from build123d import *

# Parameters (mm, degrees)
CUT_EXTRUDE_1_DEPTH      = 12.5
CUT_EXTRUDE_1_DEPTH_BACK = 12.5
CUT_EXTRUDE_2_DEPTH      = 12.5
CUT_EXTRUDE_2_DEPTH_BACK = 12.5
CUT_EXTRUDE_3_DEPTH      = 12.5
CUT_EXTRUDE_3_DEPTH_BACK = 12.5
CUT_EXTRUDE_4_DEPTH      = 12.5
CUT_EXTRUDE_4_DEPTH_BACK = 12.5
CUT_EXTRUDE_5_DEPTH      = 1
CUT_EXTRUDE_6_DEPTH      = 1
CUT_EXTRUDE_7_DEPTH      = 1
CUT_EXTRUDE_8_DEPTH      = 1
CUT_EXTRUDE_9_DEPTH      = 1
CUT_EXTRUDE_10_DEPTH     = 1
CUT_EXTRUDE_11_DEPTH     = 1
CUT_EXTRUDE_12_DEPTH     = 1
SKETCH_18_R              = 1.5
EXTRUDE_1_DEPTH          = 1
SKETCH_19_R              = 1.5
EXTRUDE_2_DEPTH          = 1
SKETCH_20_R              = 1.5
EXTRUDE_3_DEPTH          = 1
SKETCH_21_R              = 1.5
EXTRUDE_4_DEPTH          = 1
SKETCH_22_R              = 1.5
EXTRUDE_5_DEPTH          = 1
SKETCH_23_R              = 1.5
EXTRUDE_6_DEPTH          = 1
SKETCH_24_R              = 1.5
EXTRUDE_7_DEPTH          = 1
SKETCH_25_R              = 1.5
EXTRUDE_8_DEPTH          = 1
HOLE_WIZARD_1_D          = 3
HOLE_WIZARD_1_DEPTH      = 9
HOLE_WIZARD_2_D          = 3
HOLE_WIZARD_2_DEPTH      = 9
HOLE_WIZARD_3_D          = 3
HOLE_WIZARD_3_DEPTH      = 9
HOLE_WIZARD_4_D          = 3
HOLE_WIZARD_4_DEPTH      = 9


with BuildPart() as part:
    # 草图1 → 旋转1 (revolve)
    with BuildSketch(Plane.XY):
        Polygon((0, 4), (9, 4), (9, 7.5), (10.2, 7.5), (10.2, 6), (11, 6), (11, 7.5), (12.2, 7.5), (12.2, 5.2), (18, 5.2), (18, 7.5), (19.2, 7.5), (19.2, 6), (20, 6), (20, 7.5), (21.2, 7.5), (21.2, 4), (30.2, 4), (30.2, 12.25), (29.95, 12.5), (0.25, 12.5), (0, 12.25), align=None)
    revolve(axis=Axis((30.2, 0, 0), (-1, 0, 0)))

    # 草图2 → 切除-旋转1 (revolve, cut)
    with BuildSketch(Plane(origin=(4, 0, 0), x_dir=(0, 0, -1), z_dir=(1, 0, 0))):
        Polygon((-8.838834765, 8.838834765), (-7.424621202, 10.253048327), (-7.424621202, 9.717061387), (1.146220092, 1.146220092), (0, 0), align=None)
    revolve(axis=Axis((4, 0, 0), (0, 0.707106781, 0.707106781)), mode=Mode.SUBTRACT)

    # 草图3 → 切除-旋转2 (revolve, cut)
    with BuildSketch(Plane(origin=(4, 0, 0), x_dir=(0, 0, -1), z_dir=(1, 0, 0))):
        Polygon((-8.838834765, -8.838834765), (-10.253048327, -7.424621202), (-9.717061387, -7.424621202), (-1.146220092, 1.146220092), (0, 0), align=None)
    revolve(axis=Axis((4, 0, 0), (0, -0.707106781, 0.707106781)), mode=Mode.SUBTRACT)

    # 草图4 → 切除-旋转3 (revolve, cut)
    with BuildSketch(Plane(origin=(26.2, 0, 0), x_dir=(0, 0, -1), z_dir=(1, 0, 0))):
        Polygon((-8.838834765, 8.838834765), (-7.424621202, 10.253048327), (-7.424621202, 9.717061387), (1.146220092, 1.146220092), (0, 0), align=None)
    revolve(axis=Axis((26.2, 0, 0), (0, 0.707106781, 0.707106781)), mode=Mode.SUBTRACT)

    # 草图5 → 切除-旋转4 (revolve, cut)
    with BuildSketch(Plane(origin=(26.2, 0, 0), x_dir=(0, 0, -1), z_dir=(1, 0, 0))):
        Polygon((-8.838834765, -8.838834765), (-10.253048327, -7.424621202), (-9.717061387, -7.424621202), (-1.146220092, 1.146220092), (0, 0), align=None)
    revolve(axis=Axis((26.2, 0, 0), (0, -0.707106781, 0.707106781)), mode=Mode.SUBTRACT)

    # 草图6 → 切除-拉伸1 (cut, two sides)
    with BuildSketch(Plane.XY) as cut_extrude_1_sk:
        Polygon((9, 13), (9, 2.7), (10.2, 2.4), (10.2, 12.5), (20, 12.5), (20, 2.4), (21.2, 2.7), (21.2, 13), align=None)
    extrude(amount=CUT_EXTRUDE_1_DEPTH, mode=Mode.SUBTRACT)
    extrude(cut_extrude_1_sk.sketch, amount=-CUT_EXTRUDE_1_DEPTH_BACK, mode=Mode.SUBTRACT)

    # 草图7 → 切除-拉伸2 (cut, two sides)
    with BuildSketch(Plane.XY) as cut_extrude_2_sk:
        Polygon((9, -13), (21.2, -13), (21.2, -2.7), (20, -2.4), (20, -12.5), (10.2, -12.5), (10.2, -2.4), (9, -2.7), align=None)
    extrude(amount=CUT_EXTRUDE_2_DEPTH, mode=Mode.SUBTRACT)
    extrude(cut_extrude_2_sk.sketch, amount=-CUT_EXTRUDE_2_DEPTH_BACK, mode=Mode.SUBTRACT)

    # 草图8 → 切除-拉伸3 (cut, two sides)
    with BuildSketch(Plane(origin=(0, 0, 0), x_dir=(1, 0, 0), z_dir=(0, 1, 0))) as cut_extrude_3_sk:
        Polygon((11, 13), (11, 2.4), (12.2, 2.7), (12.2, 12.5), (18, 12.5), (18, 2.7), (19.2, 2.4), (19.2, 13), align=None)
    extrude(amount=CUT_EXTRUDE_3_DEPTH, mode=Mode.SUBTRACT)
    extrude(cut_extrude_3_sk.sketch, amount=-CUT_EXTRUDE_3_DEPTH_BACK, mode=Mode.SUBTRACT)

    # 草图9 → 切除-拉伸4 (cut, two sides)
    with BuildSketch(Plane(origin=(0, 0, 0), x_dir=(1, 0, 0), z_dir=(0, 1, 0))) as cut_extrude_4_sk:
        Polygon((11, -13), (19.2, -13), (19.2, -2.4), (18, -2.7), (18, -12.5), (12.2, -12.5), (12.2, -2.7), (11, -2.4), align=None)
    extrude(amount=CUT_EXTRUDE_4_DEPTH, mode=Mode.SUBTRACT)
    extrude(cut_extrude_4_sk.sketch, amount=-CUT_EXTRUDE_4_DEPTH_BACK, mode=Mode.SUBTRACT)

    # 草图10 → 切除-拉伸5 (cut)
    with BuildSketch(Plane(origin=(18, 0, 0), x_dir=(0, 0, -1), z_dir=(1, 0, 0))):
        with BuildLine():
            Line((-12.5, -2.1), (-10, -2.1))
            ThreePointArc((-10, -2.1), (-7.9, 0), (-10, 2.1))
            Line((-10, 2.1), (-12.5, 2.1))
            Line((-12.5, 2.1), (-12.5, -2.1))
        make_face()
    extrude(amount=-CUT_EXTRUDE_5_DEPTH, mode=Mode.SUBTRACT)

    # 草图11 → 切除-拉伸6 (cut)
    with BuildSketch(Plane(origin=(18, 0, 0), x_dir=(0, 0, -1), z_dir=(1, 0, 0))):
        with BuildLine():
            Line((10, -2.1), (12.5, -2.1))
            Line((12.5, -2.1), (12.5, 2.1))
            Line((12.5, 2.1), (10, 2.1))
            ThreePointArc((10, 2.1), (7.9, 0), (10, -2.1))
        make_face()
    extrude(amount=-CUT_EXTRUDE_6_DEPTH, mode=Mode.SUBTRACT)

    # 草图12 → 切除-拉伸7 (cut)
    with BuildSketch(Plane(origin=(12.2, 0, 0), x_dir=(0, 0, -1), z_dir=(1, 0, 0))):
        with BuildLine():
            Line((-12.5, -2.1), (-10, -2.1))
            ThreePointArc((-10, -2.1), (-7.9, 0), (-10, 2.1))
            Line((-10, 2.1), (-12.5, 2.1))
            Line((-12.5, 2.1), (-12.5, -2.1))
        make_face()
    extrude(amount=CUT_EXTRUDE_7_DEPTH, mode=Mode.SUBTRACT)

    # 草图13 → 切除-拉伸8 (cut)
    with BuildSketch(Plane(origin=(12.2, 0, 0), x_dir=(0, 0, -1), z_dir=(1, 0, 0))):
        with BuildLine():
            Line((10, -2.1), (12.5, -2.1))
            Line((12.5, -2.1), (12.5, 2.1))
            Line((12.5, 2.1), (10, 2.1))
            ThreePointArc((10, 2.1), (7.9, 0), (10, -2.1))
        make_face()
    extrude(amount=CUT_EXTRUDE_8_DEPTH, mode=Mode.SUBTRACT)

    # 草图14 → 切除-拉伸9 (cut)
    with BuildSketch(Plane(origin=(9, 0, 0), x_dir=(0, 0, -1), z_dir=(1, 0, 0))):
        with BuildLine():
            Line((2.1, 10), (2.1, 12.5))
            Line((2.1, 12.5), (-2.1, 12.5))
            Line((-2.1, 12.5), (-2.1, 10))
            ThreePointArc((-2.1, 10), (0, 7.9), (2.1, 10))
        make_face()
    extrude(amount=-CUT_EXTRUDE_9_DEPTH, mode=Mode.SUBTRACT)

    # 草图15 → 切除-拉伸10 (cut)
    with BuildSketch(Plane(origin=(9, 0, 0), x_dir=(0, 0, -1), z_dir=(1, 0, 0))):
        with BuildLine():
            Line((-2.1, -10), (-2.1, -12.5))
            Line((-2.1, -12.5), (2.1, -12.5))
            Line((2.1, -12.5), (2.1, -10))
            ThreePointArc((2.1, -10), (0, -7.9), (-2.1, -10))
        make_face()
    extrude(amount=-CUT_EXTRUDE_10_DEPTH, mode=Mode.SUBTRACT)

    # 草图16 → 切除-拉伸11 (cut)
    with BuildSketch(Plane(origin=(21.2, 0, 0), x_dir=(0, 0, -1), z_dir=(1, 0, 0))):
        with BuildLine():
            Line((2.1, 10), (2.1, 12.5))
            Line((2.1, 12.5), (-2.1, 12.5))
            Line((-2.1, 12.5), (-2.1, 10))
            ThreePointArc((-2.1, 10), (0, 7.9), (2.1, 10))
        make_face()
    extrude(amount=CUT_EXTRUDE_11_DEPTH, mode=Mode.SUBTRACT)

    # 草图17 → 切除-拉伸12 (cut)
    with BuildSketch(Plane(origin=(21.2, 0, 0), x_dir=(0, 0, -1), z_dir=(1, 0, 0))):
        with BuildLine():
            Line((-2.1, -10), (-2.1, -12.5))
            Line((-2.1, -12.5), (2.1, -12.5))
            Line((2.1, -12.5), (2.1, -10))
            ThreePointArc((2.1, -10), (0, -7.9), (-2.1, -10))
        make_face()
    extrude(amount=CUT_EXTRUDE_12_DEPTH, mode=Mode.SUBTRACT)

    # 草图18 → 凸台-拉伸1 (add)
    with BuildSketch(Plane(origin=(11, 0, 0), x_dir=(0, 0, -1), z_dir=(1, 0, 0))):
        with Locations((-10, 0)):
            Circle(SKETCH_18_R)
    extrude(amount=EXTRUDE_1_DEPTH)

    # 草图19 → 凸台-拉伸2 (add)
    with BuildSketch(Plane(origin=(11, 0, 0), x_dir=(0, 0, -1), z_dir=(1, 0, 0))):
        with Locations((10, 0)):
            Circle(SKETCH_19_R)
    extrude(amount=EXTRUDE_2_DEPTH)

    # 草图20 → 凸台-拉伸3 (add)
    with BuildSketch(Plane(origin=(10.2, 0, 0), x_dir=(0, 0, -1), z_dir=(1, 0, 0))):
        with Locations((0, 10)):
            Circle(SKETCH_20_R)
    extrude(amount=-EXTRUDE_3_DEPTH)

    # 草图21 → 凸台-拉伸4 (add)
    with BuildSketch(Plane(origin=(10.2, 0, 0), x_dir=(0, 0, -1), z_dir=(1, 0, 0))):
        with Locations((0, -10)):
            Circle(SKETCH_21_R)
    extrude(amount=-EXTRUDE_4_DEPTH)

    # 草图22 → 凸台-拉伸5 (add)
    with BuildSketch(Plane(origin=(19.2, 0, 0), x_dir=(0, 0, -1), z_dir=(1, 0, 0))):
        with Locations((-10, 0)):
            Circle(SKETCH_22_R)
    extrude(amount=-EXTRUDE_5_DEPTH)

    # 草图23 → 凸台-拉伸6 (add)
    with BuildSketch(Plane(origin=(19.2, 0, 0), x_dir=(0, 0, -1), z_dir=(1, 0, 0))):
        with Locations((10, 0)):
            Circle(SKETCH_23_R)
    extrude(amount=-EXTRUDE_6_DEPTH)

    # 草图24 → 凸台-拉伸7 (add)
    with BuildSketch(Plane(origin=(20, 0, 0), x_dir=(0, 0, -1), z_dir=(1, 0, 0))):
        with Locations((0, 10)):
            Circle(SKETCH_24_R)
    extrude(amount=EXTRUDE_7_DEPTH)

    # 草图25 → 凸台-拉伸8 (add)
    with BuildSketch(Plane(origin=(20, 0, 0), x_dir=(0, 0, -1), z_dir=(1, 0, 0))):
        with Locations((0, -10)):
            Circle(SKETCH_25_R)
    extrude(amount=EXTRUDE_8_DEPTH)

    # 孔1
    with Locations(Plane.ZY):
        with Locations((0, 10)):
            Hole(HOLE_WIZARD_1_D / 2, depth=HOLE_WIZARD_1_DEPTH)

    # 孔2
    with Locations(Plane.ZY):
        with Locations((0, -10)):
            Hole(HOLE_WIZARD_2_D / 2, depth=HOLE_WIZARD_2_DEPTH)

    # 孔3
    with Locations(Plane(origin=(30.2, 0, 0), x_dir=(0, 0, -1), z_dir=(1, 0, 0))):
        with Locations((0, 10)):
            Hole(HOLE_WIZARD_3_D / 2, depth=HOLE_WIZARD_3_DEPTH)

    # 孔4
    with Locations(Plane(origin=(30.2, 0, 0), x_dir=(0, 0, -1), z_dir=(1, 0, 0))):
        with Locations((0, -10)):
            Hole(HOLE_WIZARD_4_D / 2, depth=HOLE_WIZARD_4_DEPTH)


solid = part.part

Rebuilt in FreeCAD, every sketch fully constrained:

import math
import FreeCAD as App
import Part
import Sketcher
from FreeCAD import Vector
Q = App.Units.Quantity


def add_polygon(sketch, points):
    """Adds a closed chain of lines whose ends are joined by coincident constraints."""
    first, n = sketch.GeometryCount, len(points)
    for a, b in zip(points, points[1:] + points[:1]):
        sketch.addGeometry(Part.LineSegment(App.Vector(*a, 0), App.Vector(*b, 0)), False)
    for i in range(n):
        sketch.addConstraint(Sketcher.Constraint("Coincident", first + i, 2, first + (i + 1) % n, 1))

doc = App.newDocument("Part")
body = doc.addObject("PartDesign::Body", "Body")

sketch1 = body.newObject("Sketcher::SketchObject", "Sketch")
sketch1.AttachmentSupport = (doc.getObject("XY_Plane"), [""])
sketch1.MapMode = "FlatFace"
add_polygon(sketch1, [(0, 4), (9, 4), (9, 7.5), (10.2, 7.5), (10.2, 6), (11, 6), (11, 7.5), (12.2, 7.5), (12.2, 5.2), (18, 5.2), (18, 7.5), (19.2, 7.5), (19.2, 6), (20, 6), (20, 7.5), (21.2, 7.5), (21.2, 4), (30.2, 4), (30.2, 12.25), (29.95, 12.5), (0.25, 12.5), (0, 12.25)])
sketch1.addConstraint(Sketcher.Constraint("Horizontal", 0))
sketch1.addConstraint(Sketcher.Constraint("Vertical", 1))
sketch1.addConstraint(Sketcher.Constraint("Horizontal", 2))
sketch1.addConstraint(Sketcher.Constraint("Vertical", 3))
sketch1.addConstraint(Sketcher.Constraint("Horizontal", 4))
sketch1.addConstraint(Sketcher.Constraint("Vertical", 5))
sketch1.addConstraint(Sketcher.Constraint("Horizontal", 6))
sketch1.addConstraint(Sketcher.Constraint("Vertical", 7))
sketch1.addConstraint(Sketcher.Constraint("Horizontal", 8))
sketch1.addConstraint(Sketcher.Constraint("Vertical", 9))
sketch1.addConstraint(Sketcher.Constraint("Horizontal", 10))
sketch1.addConstraint(Sketcher.Constraint("Vertical", 11))
sketch1.addConstraint(Sketcher.Constraint("Horizontal", 12))
sketch1.addConstraint(Sketcher.Constraint("Vertical", 13))
sketch1.addConstraint(Sketcher.Constraint("Horizontal", 14))
sketch1.addConstraint(Sketcher.Constraint("Vertical", 15))
sketch1.addConstraint(Sketcher.Constraint("Horizontal", 16))
sketch1.addConstraint(Sketcher.Constraint("Vertical", 17))
sketch1.addConstraint(Sketcher.Constraint("Horizontal", 19))
sketch1.addConstraint(Sketcher.Constraint("Vertical", 21))
sketch1.addConstraint(Sketcher.Constraint("PointOnObject", 20, 2, -2))
sketch1.addConstraint(Sketcher.Constraint("Perpendicular", 18, 20))
sketch1.addConstraint(Sketcher.Constraint("Horizontal", 2, 2, 5, 2))
sketch1.addConstraint(Sketcher.Constraint("Horizontal", 6, 2, 9, 2))
sketch1.addConstraint(Sketcher.Constraint("Horizontal", 4, 2, 11, 2))
sketch1.addConstraint(Sketcher.Constraint("Horizontal", 10, 2, 13, 2))
sketch1.addConstraint(Sketcher.Constraint("Horizontal", 0, 2, 15, 2))
sketch1.addConstraint(Sketcher.Constraint("Horizontal", 17, 2, 20, 2))
sketch1.addConstraint(Sketcher.Constraint("Equal", 2, 6))
sketch1.addConstraint(Sketcher.Constraint("Equal", 6, 10))
sketch1.addConstraint(Sketcher.Constraint("Equal", 4, 12))
sketch1.addConstraint(Sketcher.Constraint("Equal", 10, 14))
sketch1.addConstraint(Sketcher.Constraint("Equal", 0, 16))
sketch1.addConstraint(Sketcher.Constraint("Equal", 18, 20))
sketch1.addConstraint(Sketcher.Constraint("DistanceX", 0, 1, 0, 2, 9.0))
sketch1.addConstraint(Sketcher.Constraint("DistanceX", 2, 1, 2, 2, 1.2))
sketch1.addConstraint(Sketcher.Constraint("DistanceX", 4, 1, 4, 2, 0.8))
sketch1.addConstraint(Sketcher.Constraint("DistanceX", 8, 1, 8, 2, 5.8))
sketch1.addConstraint(Sketcher.Constraint("DistanceX", 19, 2, 19, 1, 29.7))
sketch1.addConstraint(Sketcher.Constraint("DistanceY", 1, 1, 1, 2, 3.5))
sketch1.addConstraint(Sketcher.Constraint("DistanceY", 3, 2, 3, 1, 1.5))
sketch1.addConstraint(Sketcher.Constraint("DistanceY", 7, 2, 7, 1, 2.3))
sketch1.addConstraint(Sketcher.Constraint("DistanceY", -1, 1, 0, 2, 4.0))
sketch1.addConstraint(Sketcher.Constraint("DistanceY", 14, 2, 18, 2, 5.0))
revolution = body.newObject("PartDesign::Revolution", "Revolution")
revolution.Profile = sketch1
revolution.ReferenceAxis = (sketch1, ["H_Axis"])
revolution.Angle = 360

sketch2 = body.newObject("Sketcher::SketchObject", "Sketch001")
sketch2.AttachmentSupport = (doc.getObject("YZ_Plane"), [""])
sketch2.MapMode = "FlatFace"
sketch2.AttachmentOffset = App.Placement(Vector(0, 0, 4), App.Rotation())
add_polygon(sketch2, [(10.253048, 7.424621), (8.838835, 8.838835), (0, 0), (1.14622, -1.14622), (9.717061, 7.424621)])
sketch2.addGeometry(Part.LineSegment(Vector(0, 0, 0), Vector(8.838835, 8.838835, 0)), True)
sketch2.addConstraint(Sketcher.Constraint("Horizontal", 4))
sketch2.addConstraint(Sketcher.Constraint("Coincident", 1, 2, -1, 1))
sketch2.addConstraint(Sketcher.Constraint("Coincident", 5, 1, -1, 1))
sketch2.addConstraint(Sketcher.Constraint("Coincident", 5, 2, 0, 2))
sketch2.addConstraint(Sketcher.Constraint("Perpendicular", 0, 1))
sketch2.addConstraint(Sketcher.Constraint("Perpendicular", 1, 2))
sketch2.addConstraint(Sketcher.Constraint("Perpendicular", 2, 3))
sketch2.addConstraint(Sketcher.Constraint("Angle", 0, Q("135 deg")))
sketch2.addConstraint(Sketcher.Constraint("Distance", 0, 2.0))
sketch2.addConstraint(Sketcher.Constraint("Distance", 1, 12.5))
sketch2.addConstraint(Sketcher.Constraint("Distance", 2, 1.621))
groove = body.newObject("PartDesign::Groove", "Groove")
groove.Profile = sketch2
groove.ReferenceAxis = (sketch2, ["Axis0"])
groove.Angle = 360

sketch3 = body.newObject("Sketcher::SketchObject", "Sketch002")
sketch3.AttachmentSupport = (doc.getObject("YZ_Plane"), [""])
sketch3.MapMode = "FlatFace"
sketch3.AttachmentOffset = App.Placement(Vector(0, 0, 4), App.Rotation())
add_polygon(sketch3, [(-7.424621, 10.253048), (-8.838835, 8.838835), (0, 0), (1.14622, 1.14622), (-7.424621, 9.717061)])
sketch3.addGeometry(Part.LineSegment(Vector(0, 0, 0), Vector(-8.838835, 8.838835, 0)), True)
sketch3.addConstraint(Sketcher.Constraint("Vertical", 4))
sketch3.addConstraint(Sketcher.Constraint("Coincident", 1, 2, -1, 1))
sketch3.addConstraint(Sketcher.Constraint("Coincident", 5, 1, -1, 1))
sketch3.addConstraint(Sketcher.Constraint("Coincident", 5, 2, 0, 2))
sketch3.addConstraint(Sketcher.Constraint("Perpendicular", 0, 1))
sketch3.addConstraint(Sketcher.Constraint("Perpendicular", 1, 2))
sketch3.addConstraint(Sketcher.Constraint("Perpendicular", 2, 3))
sketch3.addConstraint(Sketcher.Constraint("Angle", 0, Q("-135 deg")))
sketch3.addConstraint(Sketcher.Constraint("Distance", 0, 2.0))
sketch3.addConstraint(Sketcher.Constraint("Distance", 1, 12.5))
sketch3.addConstraint(Sketcher.Constraint("Distance", 2, 1.621))
groove2 = body.newObject("PartDesign::Groove", "Groove001")
groove2.Profile = sketch3
groove2.ReferenceAxis = (sketch3, ["Axis0"])
groove2.Angle = 360

sketch4 = body.newObject("Sketcher::SketchObject", "Sketch003")
sketch4.AttachmentSupport = (doc.getObject("YZ_Plane"), [""])
sketch4.MapMode = "FlatFace"
sketch4.AttachmentOffset = App.Placement(Vector(0, 0, 26.2), App.Rotation())
add_polygon(sketch4, [(10.253048, 7.424621), (8.838835, 8.838835), (0, 0), (1.14622, -1.14622), (9.717061, 7.424621)])
sketch4.addGeometry(Part.LineSegment(Vector(0, 0, 0), Vector(8.838835, 8.838835, 0)), True)
sketch4.addConstraint(Sketcher.Constraint("Horizontal", 4))
sketch4.addConstraint(Sketcher.Constraint("Coincident", 1, 2, -1, 1))
sketch4.addConstraint(Sketcher.Constraint("Coincident", 5, 1, -1, 1))
sketch4.addConstraint(Sketcher.Constraint("Coincident", 5, 2, 0, 2))
sketch4.addConstraint(Sketcher.Constraint("Perpendicular", 0, 1))
sketch4.addConstraint(Sketcher.Constraint("Perpendicular", 1, 2))
sketch4.addConstraint(Sketcher.Constraint("Perpendicular", 2, 3))
sketch4.addConstraint(Sketcher.Constraint("Angle", 0, Q("135 deg")))
sketch4.addConstraint(Sketcher.Constraint("Distance", 0, 2.0))
sketch4.addConstraint(Sketcher.Constraint("Distance", 1, 12.5))
sketch4.addConstraint(Sketcher.Constraint("Distance", 2, 1.621))
groove3 = body.newObject("PartDesign::Groove", "Groove002")
groove3.Profile = sketch4
groove3.ReferenceAxis = (sketch4, ["Axis0"])
groove3.Angle = 360

sketch5 = body.newObject("Sketcher::SketchObject", "Sketch004")
sketch5.AttachmentSupport = (doc.getObject("YZ_Plane"), [""])
sketch5.MapMode = "FlatFace"
sketch5.AttachmentOffset = App.Placement(Vector(0, 0, 26.2), App.Rotation())
add_polygon(sketch5, [(-7.424621, 10.253048), (-8.838835, 8.838835), (0, 0), (1.14622, 1.14622), (-7.424621, 9.717061)])
sketch5.addGeometry(Part.LineSegment(Vector(0, 0, 0), Vector(-8.838835, 8.838835, 0)), True)
sketch5.addConstraint(Sketcher.Constraint("Vertical", 4))
sketch5.addConstraint(Sketcher.Constraint("Coincident", 1, 2, -1, 1))
sketch5.addConstraint(Sketcher.Constraint("Coincident", 5, 1, -1, 1))
sketch5.addConstraint(Sketcher.Constraint("Coincident", 5, 2, 0, 2))
sketch5.addConstraint(Sketcher.Constraint("Perpendicular", 0, 1))
sketch5.addConstraint(Sketcher.Constraint("Perpendicular", 1, 2))
sketch5.addConstraint(Sketcher.Constraint("Perpendicular", 2, 3))
sketch5.addConstraint(Sketcher.Constraint("Angle", 0, Q("-135 deg")))
sketch5.addConstraint(Sketcher.Constraint("Distance", 0, 2.0))
sketch5.addConstraint(Sketcher.Constraint("Distance", 1, 12.5))
sketch5.addConstraint(Sketcher.Constraint("Distance", 2, 1.621))
groove4 = body.newObject("PartDesign::Groove", "Groove003")
groove4.Profile = sketch5
groove4.ReferenceAxis = (sketch5, ["Axis0"])
groove4.Angle = 360

sketch6 = body.newObject("Sketcher::SketchObject", "Sketch005")
sketch6.AttachmentSupport = (doc.getObject("XY_Plane"), [""])
sketch6.MapMode = "FlatFace"
add_polygon(sketch6, [(9, 13), (9, 2.7), (10.2, 2.4), (10.2, 12.5), (20, 12.5), (20, 2.4), (21.2, 2.7), (21.2, 13)])
sketch6.addConstraint(Sketcher.Constraint("Vertical", 0))
sketch6.addConstraint(Sketcher.Constraint("Vertical", 2))
sketch6.addConstraint(Sketcher.Constraint("Horizontal", 3))
sketch6.addConstraint(Sketcher.Constraint("Vertical", 4))
sketch6.addConstraint(Sketcher.Constraint("Vertical", 6))
sketch6.addConstraint(Sketcher.Constraint("Horizontal", 7))
sketch6.addConstraint(Sketcher.Constraint("Horizontal", 1, 2, 4, 2))
sketch6.addConstraint(Sketcher.Constraint("Horizontal", 0, 2, 5, 2))
sketch6.addConstraint(Sketcher.Constraint("Equal", 1, 5))
sketch6.addConstraint(Sketcher.Constraint("DistanceX", 3, 1, 3, 2, 9.8))
sketch6.addConstraint(Sketcher.Constraint("DistanceX", 7, 2, 7, 1, 12.2))
sketch6.addConstraint(Sketcher.Constraint("DistanceY", 0, 2, 0, 1, 10.3))
sketch6.addConstraint(Sketcher.Constraint("DistanceY", 2, 1, 2, 2, 10.1))
sketch6.addConstraint(Sketcher.Constraint("DistanceX", -1, 1, 0, 2, 9.0))
sketch6.addConstraint(Sketcher.Constraint("DistanceY", -1, 1, 6, 2, 13.0))
sketch6.addConstraint(Sketcher.Constraint("DistanceY", -1, 1, 1, 2, 2.4))
pocket1 = body.newObject("PartDesign::Pocket", "Pocket")
pocket1.Profile = sketch6
pocket1.Type = "ThroughAll"
pocket1.Midplane = True

sketch7 = body.newObject("Sketcher::SketchObject", "Sketch006")
sketch7.AttachmentSupport = (doc.getObject("XY_Plane"), [""])
sketch7.MapMode = "FlatFace"
add_polygon(sketch7, [(9, -13), (21.2, -13), (21.2, -2.7), (20, -2.4), (20, -12.5), (10.2, -12.5), (10.2, -2.4), (9, -2.7)])
sketch7.addConstraint(Sketcher.Constraint("Horizontal", 0))
sketch7.addConstraint(Sketcher.Constraint("Vertical", 1))
sketch7.addConstraint(Sketcher.Constraint("Vertical", 3))
sketch7.addConstraint(Sketcher.Constraint("Horizontal", 4))
sketch7.addConstraint(Sketcher.Constraint("Vertical", 5))
sketch7.addConstraint(Sketcher.Constraint("Vertical", 7))
sketch7.addConstraint(Sketcher.Constraint("Horizontal", 2, 2, 5, 2))
sketch7.addConstraint(Sketcher.Constraint("Horizontal", 1, 2, 6, 2))
sketch7.addConstraint(Sketcher.Constraint("Equal", 2, 6))
sketch7.addConstraint(Sketcher.Constraint("DistanceX", 0, 1, 0, 2, 12.2))
sketch7.addConstraint(Sketcher.Constraint("DistanceX", 4, 2, 4, 1, 9.8))
sketch7.addConstraint(Sketcher.Constraint("DistanceY", 1, 1, 1, 2, 10.3))
sketch7.addConstraint(Sketcher.Constraint("DistanceY", 3, 2, 3, 1, 10.1))
sketch7.addConstraint(Sketcher.Constraint("DistanceY", 0, 2, -1, 1, 13.0))
sketch7.addConstraint(Sketcher.Constraint("DistanceX", -1, 1, 2, 2, 20.0))
sketch7.addConstraint(Sketcher.Constraint("DistanceY", 2, 2, -1, 1, 2.4))
pocket2 = body.newObject("PartDesign::Pocket", "Pocket001")
pocket2.Profile = sketch7
pocket2.Type = "ThroughAll"
pocket2.Midplane = True

sketch8 = body.newObject("Sketcher::SketchObject", "Sketch007")
sketch8.AttachmentSupport = (doc.getObject("XZ_Plane"), [""])
sketch8.MapMode = "FlatFace"
add_polygon(sketch8, [(11, -13), (11, -2.4), (12.2, -2.7), (12.2, -12.5), (18, -12.5), (18, -2.7), (19.2, -2.4), (19.2, -13)])
sketch8.addConstraint(Sketcher.Constraint("Vertical", 0))
sketch8.addConstraint(Sketcher.Constraint("Vertical", 2))
sketch8.addConstraint(Sketcher.Constraint("Horizontal", 3))
sketch8.addConstraint(Sketcher.Constraint("Vertical", 4))
sketch8.addConstraint(Sketcher.Constraint("Vertical", 6))
sketch8.addConstraint(Sketcher.Constraint("Horizontal", 7))
sketch8.addConstraint(Sketcher.Constraint("Horizontal", 1, 2, 4, 2))
sketch8.addConstraint(Sketcher.Constraint("Horizontal", 0, 2, 5, 2))
sketch8.addConstraint(Sketcher.Constraint("Equal", 1, 5))
sketch8.addConstraint(Sketcher.Constraint("DistanceX", 3, 1, 3, 2, 5.8))
sketch8.addConstraint(Sketcher.Constraint("DistanceX", 7, 2, 7, 1, 8.2))
sketch8.addConstraint(Sketcher.Constraint("DistanceY", 0, 1, 0, 2, 10.6))
sketch8.addConstraint(Sketcher.Constraint("DistanceY", 2, 2, 2, 1, 9.8))
sketch8.addConstraint(Sketcher.Constraint("DistanceX", -1, 1, 0, 2, 11.0))
sketch8.addConstraint(Sketcher.Constraint("DistanceY", 6, 2, -1, 1, 13.0))
sketch8.addConstraint(Sketcher.Constraint("DistanceY", 1, 2, -1, 1, 2.7))
pocket3 = body.newObject("PartDesign::Pocket", "Pocket002")
pocket3.Profile = sketch8
pocket3.Type = "ThroughAll"
pocket3.Midplane = True

sketch9 = body.newObject("Sketcher::SketchObject", "Sketch008")
sketch9.AttachmentSupport = (doc.getObject("XZ_Plane"), [""])
sketch9.MapMode = "FlatFace"
add_polygon(sketch9, [(11, 13), (19.2, 13), (19.2, 2.4), (18, 2.7), (18, 12.5), (12.2, 12.5), (12.2, 2.7), (11, 2.4)])
sketch9.addConstraint(Sketcher.Constraint("Horizontal", 0))
sketch9.addConstraint(Sketcher.Constraint("Vertical", 1))
sketch9.addConstraint(Sketcher.Constraint("Vertical", 3))
sketch9.addConstraint(Sketcher.Constraint("Horizontal", 4))
sketch9.addConstraint(Sketcher.Constraint("Vertical", 5))
sketch9.addConstraint(Sketcher.Constraint("Vertical", 7))
sketch9.addConstraint(Sketcher.Constraint("Horizontal", 2, 2, 5, 2))
sketch9.addConstraint(Sketcher.Constraint("Horizontal", 1, 2, 6, 2))
sketch9.addConstraint(Sketcher.Constraint("Equal", 2, 6))
sketch9.addConstraint(Sketcher.Constraint("DistanceX", 0, 1, 0, 2, 8.2))
sketch9.addConstraint(Sketcher.Constraint("DistanceX", 4, 2, 4, 1, 5.8))
sketch9.addConstraint(Sketcher.Constraint("DistanceY", 1, 2, 1, 1, 10.6))
sketch9.addConstraint(Sketcher.Constraint("DistanceY", 3, 1, 3, 2, 9.8))
sketch9.addConstraint(Sketcher.Constraint("DistanceY", -1, 1, 0, 2, 13.0))
sketch9.addConstraint(Sketcher.Constraint("DistanceX", -1, 1, 2, 2, 18.0))
sketch9.addConstraint(Sketcher.Constraint("DistanceY", -1, 1, 2, 2, 2.7))
pocket4 = body.newObject("PartDesign::Pocket", "Pocket003")
pocket4.Profile = sketch9
pocket4.Type = "ThroughAll"
pocket4.Midplane = True

sketch10 = body.newObject("Sketcher::SketchObject", "Sketch009")
sketch10.AttachmentSupport = (doc.getObject("YZ_Plane"), [""])
sketch10.MapMode = "FlatFace"
sketch10.AttachmentOffset = App.Placement(Vector(0, 0, 18), App.Rotation())
sketch10.addGeometry(Part.LineSegment(Vector(-2.1, 12.5, 0), Vector(-2.1, 10, 0)), False)
sketch10.addGeometry(Part.ArcOfCircle(Part.Circle(Vector(0, 10, 0), Vector(0, 0, 1), 2.1), math.radians(180), math.radians(360)), False)
sketch10.addGeometry(Part.LineSegment(Vector(2.1, 10, 0), Vector(2.1, 12.5, 0)), False)
sketch10.addGeometry(Part.LineSegment(Vector(2.1, 12.5, 0), Vector(-2.1, 12.5, 0)), False)
sketch10.addConstraint(Sketcher.Constraint("Tangent", 0, 2, 1, 1))
sketch10.addConstraint(Sketcher.Constraint("Tangent", 1, 2, 2, 1))
sketch10.addConstraint(Sketcher.Constraint("Coincident", 2, 2, 3, 1))
sketch10.addConstraint(Sketcher.Constraint("Coincident", 3, 2, 0, 1))
sketch10.addConstraint(Sketcher.Constraint("Vertical", 0))
sketch10.addConstraint(Sketcher.Constraint("Vertical", 2))
sketch10.addConstraint(Sketcher.Constraint("Horizontal", 3))
sketch10.addConstraint(Sketcher.Constraint("PointOnObject", 1, 3, -2))
sketch10.addConstraint(Sketcher.Constraint("Radius", 1, 2.1))
sketch10.addConstraint(Sketcher.Constraint("DistanceY", 0, 2, 0, 1, 2.5))
sketch10.addConstraint(Sketcher.Constraint("DistanceY", -1, 1, 1, 3, 10.0))
pocket5 = body.newObject("PartDesign::Pocket", "Pocket004")
pocket5.Profile = sketch10
pocket5.Length = 1

sketch11 = body.newObject("Sketcher::SketchObject", "Sketch010")
sketch11.AttachmentSupport = (doc.getObject("YZ_Plane"), [""])
sketch11.MapMode = "FlatFace"
sketch11.AttachmentOffset = App.Placement(Vector(0, 0, 18), App.Rotation())
sketch11.addGeometry(Part.LineSegment(Vector(-2.1, -10, 0), Vector(-2.1, -12.5, 0)), False)
sketch11.addGeometry(Part.LineSegment(Vector(-2.1, -12.5, 0), Vector(2.1, -12.5, 0)), False)
sketch11.addGeometry(Part.LineSegment(Vector(2.1, -12.5, 0), Vector(2.1, -10, 0)), False)
sketch11.addGeometry(Part.ArcOfCircle(Part.Circle(Vector(0, -10, 0), Vector(0, 0, 1), 2.1), math.radians(0), math.radians(180)), False)
sketch11.addConstraint(Sketcher.Constraint("Coincident", 0, 2, 1, 1))
sketch11.addConstraint(Sketcher.Constraint("Coincident", 1, 2, 2, 1))
sketch11.addConstraint(Sketcher.Constraint("Tangent", 2, 2, 3, 1))
sketch11.addConstraint(Sketcher.Constraint("Tangent", 3, 2, 0, 1))
sketch11.addConstraint(Sketcher.Constraint("Vertical", 0))
sketch11.addConstraint(Sketcher.Constraint("Horizontal", 1))
sketch11.addConstraint(Sketcher.Constraint("Vertical", 2))
sketch11.addConstraint(Sketcher.Constraint("PointOnObject", 3, 3, -2))
sketch11.addConstraint(Sketcher.Constraint("Radius", 3, 2.1))
sketch11.addConstraint(Sketcher.Constraint("DistanceY", 0, 2, 0, 1, 2.5))
sketch11.addConstraint(Sketcher.Constraint("DistanceY", 3, 3, -1, 1, 10.0))
pocket6 = body.newObject("PartDesign::Pocket", "Pocket005")
pocket6.Profile = sketch11
pocket6.Length = 1

sketch12 = body.newObject("Sketcher::SketchObject", "Sketch011")
sketch12.AttachmentSupport = (doc.getObject("YZ_Plane"), [""])
sketch12.MapMode = "FlatFace"
sketch12.AttachmentOffset = App.Placement(Vector(0, 0, 12.2), App.Rotation())
sketch12.addGeometry(Part.LineSegment(Vector(-2.1, 12.5, 0), Vector(-2.1, 10, 0)), False)
sketch12.addGeometry(Part.ArcOfCircle(Part.Circle(Vector(0, 10, 0), Vector(0, 0, 1), 2.1), math.radians(180), math.radians(360)), False)
sketch12.addGeometry(Part.LineSegment(Vector(2.1, 10, 0), Vector(2.1, 12.5, 0)), False)
sketch12.addGeometry(Part.LineSegment(Vector(2.1, 12.5, 0), Vector(-2.1, 12.5, 0)), False)
sketch12.addConstraint(Sketcher.Constraint("Tangent", 0, 2, 1, 1))
sketch12.addConstraint(Sketcher.Constraint("Tangent", 1, 2, 2, 1))
sketch12.addConstraint(Sketcher.Constraint("Coincident", 2, 2, 3, 1))
sketch12.addConstraint(Sketcher.Constraint("Coincident", 3, 2, 0, 1))
sketch12.addConstraint(Sketcher.Constraint("Vertical", 0))
sketch12.addConstraint(Sketcher.Constraint("Vertical", 2))
sketch12.addConstraint(Sketcher.Constraint("Horizontal", 3))
sketch12.addConstraint(Sketcher.Constraint("PointOnObject", 1, 3, -2))
sketch12.addConstraint(Sketcher.Constraint("Radius", 1, 2.1))
sketch12.addConstraint(Sketcher.Constraint("DistanceY", 0, 2, 0, 1, 2.5))
sketch12.addConstraint(Sketcher.Constraint("DistanceY", -1, 1, 1, 3, 10.0))
pocket7 = body.newObject("PartDesign::Pocket", "Pocket006")
pocket7.Profile = sketch12
pocket7.Length = 1
pocket7.Reversed = True

sketch13 = body.newObject("Sketcher::SketchObject", "Sketch012")
sketch13.AttachmentSupport = (doc.getObject("YZ_Plane"), [""])
sketch13.MapMode = "FlatFace"
sketch13.AttachmentOffset = App.Placement(Vector(0, 0, 12.2), App.Rotation())
sketch13.addGeometry(Part.LineSegment(Vector(-2.1, -10, 0), Vector(-2.1, -12.5, 0)), False)
sketch13.addGeometry(Part.LineSegment(Vector(-2.1, -12.5, 0), Vector(2.1, -12.5, 0)), False)
sketch13.addGeometry(Part.LineSegment(Vector(2.1, -12.5, 0), Vector(2.1, -10, 0)), False)
sketch13.addGeometry(Part.ArcOfCircle(Part.Circle(Vector(0, -10, 0), Vector(0, 0, 1), 2.1), math.radians(0), math.radians(180)), False)
sketch13.addConstraint(Sketcher.Constraint("Coincident", 0, 2, 1, 1))
sketch13.addConstraint(Sketcher.Constraint("Coincident", 1, 2, 2, 1))
sketch13.addConstraint(Sketcher.Constraint("Tangent", 2, 2, 3, 1))
sketch13.addConstraint(Sketcher.Constraint("Tangent", 3, 2, 0, 1))
sketch13.addConstraint(Sketcher.Constraint("Vertical", 0))
sketch13.addConstraint(Sketcher.Constraint("Horizontal", 1))
sketch13.addConstraint(Sketcher.Constraint("Vertical", 2))
sketch13.addConstraint(Sketcher.Constraint("PointOnObject", 3, 3, -2))
sketch13.addConstraint(Sketcher.Constraint("Radius", 3, 2.1))
sketch13.addConstraint(Sketcher.Constraint("DistanceY", 0, 2, 0, 1, 2.5))
sketch13.addConstraint(Sketcher.Constraint("DistanceY", 3, 3, -1, 1, 10.0))
pocket8 = body.newObject("PartDesign::Pocket", "Pocket007")
pocket8.Profile = sketch13
pocket8.Length = 1
pocket8.Reversed = True

sketch14 = body.newObject("Sketcher::SketchObject", "Sketch013")
sketch14.AttachmentSupport = (doc.getObject("YZ_Plane"), [""])
sketch14.MapMode = "FlatFace"
sketch14.AttachmentOffset = App.Placement(Vector(0, 0, 9), App.Rotation())
sketch14.addGeometry(Part.LineSegment(Vector(10, -2.1, 0), Vector(12.5, -2.1, 0)), False)
sketch14.addGeometry(Part.LineSegment(Vector(12.5, -2.1, 0), Vector(12.5, 2.1, 0)), False)
sketch14.addGeometry(Part.LineSegment(Vector(12.5, 2.1, 0), Vector(10, 2.1, 0)), False)
sketch14.addGeometry(Part.ArcOfCircle(Part.Circle(Vector(10, 0, 0), Vector(0, 0, 1), 2.1), math.radians(90), math.radians(270)), False)
sketch14.addConstraint(Sketcher.Constraint("Coincident", 0, 2, 1, 1))
sketch14.addConstraint(Sketcher.Constraint("Coincident", 1, 2, 2, 1))
sketch14.addConstraint(Sketcher.Constraint("Tangent", 2, 2, 3, 1))
sketch14.addConstraint(Sketcher.Constraint("Tangent", 3, 2, 0, 1))
sketch14.addConstraint(Sketcher.Constraint("Horizontal", 0))
sketch14.addConstraint(Sketcher.Constraint("Vertical", 1))
sketch14.addConstraint(Sketcher.Constraint("Horizontal", 2))
sketch14.addConstraint(Sketcher.Constraint("PointOnObject", 3, 3, -1))
sketch14.addConstraint(Sketcher.Constraint("Radius", 3, 2.1))
sketch14.addConstraint(Sketcher.Constraint("DistanceX", 0, 1, 0, 2, 2.5))
sketch14.addConstraint(Sketcher.Constraint("DistanceX", -1, 1, 3, 3, 10.0))
pocket9 = body.newObject("PartDesign::Pocket", "Pocket008")
pocket9.Profile = sketch14
pocket9.Length = 1

sketch15 = body.newObject("Sketcher::SketchObject", "Sketch014")
sketch15.AttachmentSupport = (doc.getObject("YZ_Plane"), [""])
sketch15.MapMode = "FlatFace"
sketch15.AttachmentOffset = App.Placement(Vector(0, 0, 9), App.Rotation())
sketch15.addGeometry(Part.LineSegment(Vector(-10, 2.1, 0), Vector(-12.5, 2.1, 0)), False)
sketch15.addGeometry(Part.LineSegment(Vector(-12.5, 2.1, 0), Vector(-12.5, -2.1, 0)), False)
sketch15.addGeometry(Part.LineSegment(Vector(-12.5, -2.1, 0), Vector(-10, -2.1, 0)), False)
sketch15.addGeometry(Part.ArcOfCircle(Part.Circle(Vector(-10, 0, 0), Vector(0, 0, 1), 2.1), math.radians(-90), math.radians(90)), False)
sketch15.addConstraint(Sketcher.Constraint("Coincident", 0, 2, 1, 1))
sketch15.addConstraint(Sketcher.Constraint("Coincident", 1, 2, 2, 1))
sketch15.addConstraint(Sketcher.Constraint("Tangent", 2, 2, 3, 1))
sketch15.addConstraint(Sketcher.Constraint("Tangent", 3, 2, 0, 1))
sketch15.addConstraint(Sketcher.Constraint("Horizontal", 0))
sketch15.addConstraint(Sketcher.Constraint("Vertical", 1))
sketch15.addConstraint(Sketcher.Constraint("Horizontal", 2))
sketch15.addConstraint(Sketcher.Constraint("PointOnObject", 3, 3, -1))
sketch15.addConstraint(Sketcher.Constraint("Radius", 3, 2.1))
sketch15.addConstraint(Sketcher.Constraint("DistanceX", 0, 2, 0, 1, 2.5))
sketch15.addConstraint(Sketcher.Constraint("DistanceX", 3, 3, -1, 1, 10.0))
pocket10 = body.newObject("PartDesign::Pocket", "Pocket009")
pocket10.Profile = sketch15
pocket10.Length = 1

sketch16 = body.newObject("Sketcher::SketchObject", "Sketch015")
sketch16.AttachmentSupport = (doc.getObject("YZ_Plane"), [""])
sketch16.MapMode = "FlatFace"
sketch16.AttachmentOffset = App.Placement(Vector(0, 0, 21.2), App.Rotation())
sketch16.addGeometry(Part.LineSegment(Vector(10, -2.1, 0), Vector(12.5, -2.1, 0)), False)
sketch16.addGeometry(Part.LineSegment(Vector(12.5, -2.1, 0), Vector(12.5, 2.1, 0)), False)
sketch16.addGeometry(Part.LineSegment(Vector(12.5, 2.1, 0), Vector(10, 2.1, 0)), False)
sketch16.addGeometry(Part.ArcOfCircle(Part.Circle(Vector(10, 0, 0), Vector(0, 0, 1), 2.1), math.radians(90), math.radians(270)), False)
sketch16.addConstraint(Sketcher.Constraint("Coincident", 0, 2, 1, 1))
sketch16.addConstraint(Sketcher.Constraint("Coincident", 1, 2, 2, 1))
sketch16.addConstraint(Sketcher.Constraint("Tangent", 2, 2, 3, 1))
sketch16.addConstraint(Sketcher.Constraint("Tangent", 3, 2, 0, 1))
sketch16.addConstraint(Sketcher.Constraint("Horizontal", 0))
sketch16.addConstraint(Sketcher.Constraint("Vertical", 1))
sketch16.addConstraint(Sketcher.Constraint("Horizontal", 2))
sketch16.addConstraint(Sketcher.Constraint("PointOnObject", 3, 3, -1))
sketch16.addConstraint(Sketcher.Constraint("Radius", 3, 2.1))
sketch16.addConstraint(Sketcher.Constraint("DistanceX", 0, 1, 0, 2, 2.5))
sketch16.addConstraint(Sketcher.Constraint("DistanceX", -1, 1, 3, 3, 10.0))
pocket11 = body.newObject("PartDesign::Pocket", "Pocket010")
pocket11.Profile = sketch16
pocket11.Length = 1
pocket11.Reversed = True

sketch17 = body.newObject("Sketcher::SketchObject", "Sketch016")
sketch17.AttachmentSupport = (doc.getObject("YZ_Plane"), [""])
sketch17.MapMode = "FlatFace"
sketch17.AttachmentOffset = App.Placement(Vector(0, 0, 21.2), App.Rotation())
sketch17.addGeometry(Part.LineSegment(Vector(-10, 2.1, 0), Vector(-12.5, 2.1, 0)), False)
sketch17.addGeometry(Part.LineSegment(Vector(-12.5, 2.1, 0), Vector(-12.5, -2.1, 0)), False)
sketch17.addGeometry(Part.LineSegment(Vector(-12.5, -2.1, 0), Vector(-10, -2.1, 0)), False)
sketch17.addGeometry(Part.ArcOfCircle(Part.Circle(Vector(-10, 0, 0), Vector(0, 0, 1), 2.1), math.radians(-90), math.radians(90)), False)
sketch17.addConstraint(Sketcher.Constraint("Coincident", 0, 2, 1, 1))
sketch17.addConstraint(Sketcher.Constraint("Coincident", 1, 2, 2, 1))
sketch17.addConstraint(Sketcher.Constraint("Tangent", 2, 2, 3, 1))
sketch17.addConstraint(Sketcher.Constraint("Tangent", 3, 2, 0, 1))
sketch17.addConstraint(Sketcher.Constraint("Horizontal", 0))
sketch17.addConstraint(Sketcher.Constraint("Vertical", 1))
sketch17.addConstraint(Sketcher.Constraint("Horizontal", 2))
sketch17.addConstraint(Sketcher.Constraint("PointOnObject", 3, 3, -1))
sketch17.addConstraint(Sketcher.Constraint("Radius", 3, 2.1))
sketch17.addConstraint(Sketcher.Constraint("DistanceX", 0, 2, 0, 1, 2.5))
sketch17.addConstraint(Sketcher.Constraint("DistanceX", 3, 3, -1, 1, 10.0))
pocket12 = body.newObject("PartDesign::Pocket", "Pocket011")
pocket12.Profile = sketch17
pocket12.Length = 1
pocket12.Reversed = True

sketch18 = body.newObject("Sketcher::SketchObject", "Sketch017")
sketch18.AttachmentSupport = (doc.getObject("YZ_Plane"), [""])
sketch18.MapMode = "FlatFace"
sketch18.AttachmentOffset = App.Placement(Vector(0, 0, 11), App.Rotation())
sketch18.addGeometry(Part.Circle(Vector(0, 10, 0), Vector(0, 0, 1), 1.5), False)
sketch18.addConstraint(Sketcher.Constraint("PointOnObject", 0, 3, -2))
sketch18.addConstraint(Sketcher.Constraint("Diameter", 0, 3.0))
sketch18.addConstraint(Sketcher.Constraint("DistanceY", -1, 1, 0, 3, 10.0))
pad1 = body.newObject("PartDesign::Pad", "Pad")
pad1.Profile = sketch18
pad1.Length = 1

sketch19 = body.newObject("Sketcher::SketchObject", "Sketch018")
sketch19.AttachmentSupport = (doc.getObject("YZ_Plane"), [""])
sketch19.MapMode = "FlatFace"
sketch19.AttachmentOffset = App.Placement(Vector(0, 0, 11), App.Rotation())
sketch19.addGeometry(Part.Circle(Vector(0, -10, 0), Vector(0, 0, 1), 1.5), False)
sketch19.addConstraint(Sketcher.Constraint("PointOnObject", 0, 3, -2))
sketch19.addConstraint(Sketcher.Constraint("Diameter", 0, 3.0))
sketch19.addConstraint(Sketcher.Constraint("DistanceY", 0, 3, -1, 1, 10.0))
pad2 = body.newObject("PartDesign::Pad", "Pad001")
pad2.Profile = sketch19
pad2.Length = 1

sketch20 = body.newObject("Sketcher::SketchObject", "Sketch019")
sketch20.AttachmentSupport = (doc.getObject("YZ_Plane"), [""])
sketch20.MapMode = "FlatFace"
sketch20.AttachmentOffset = App.Placement(Vector(0, 0, 10.2), App.Rotation())
sketch20.addGeometry(Part.Circle(Vector(10, 0, 0), Vector(0, 0, 1), 1.5), False)
sketch20.addConstraint(Sketcher.Constraint("PointOnObject", 0, 3, -1))
sketch20.addConstraint(Sketcher.Constraint("Diameter", 0, 3.0))
sketch20.addConstraint(Sketcher.Constraint("DistanceX", -1, 1, 0, 3, 10.0))
pad3 = body.newObject("PartDesign::Pad", "Pad002")
pad3.Profile = sketch20
pad3.Length = 1
pad3.Reversed = True

sketch21 = body.newObject("Sketcher::SketchObject", "Sketch020")
sketch21.AttachmentSupport = (doc.getObject("YZ_Plane"), [""])
sketch21.MapMode = "FlatFace"
sketch21.AttachmentOffset = App.Placement(Vector(0, 0, 10.2), App.Rotation())
sketch21.addGeometry(Part.Circle(Vector(-10, 0, 0), Vector(0, 0, 1), 1.5), False)
sketch21.addConstraint(Sketcher.Constraint("PointOnObject", 0, 3, -1))
sketch21.addConstraint(Sketcher.Constraint("Diameter", 0, 3.0))
sketch21.addConstraint(Sketcher.Constraint("DistanceX", 0, 3, -1, 1, 10.0))
pad4 = body.newObject("PartDesign::Pad", "Pad003")
pad4.Profile = sketch21
pad4.Length = 1
pad4.Reversed = True

sketch22 = body.newObject("Sketcher::SketchObject", "Sketch021")
sketch22.AttachmentSupport = (doc.getObject("YZ_Plane"), [""])
sketch22.MapMode = "FlatFace"
sketch22.AttachmentOffset = App.Placement(Vector(0, 0, 19.2), App.Rotation())
sketch22.addGeometry(Part.Circle(Vector(0, 10, 0), Vector(0, 0, 1), 1.5), False)
sketch22.addConstraint(Sketcher.Constraint("PointOnObject", 0, 3, -2))
sketch22.addConstraint(Sketcher.Constraint("Diameter", 0, 3.0))
sketch22.addConstraint(Sketcher.Constraint("DistanceY", -1, 1, 0, 3, 10.0))
pad5 = body.newObject("PartDesign::Pad", "Pad004")
pad5.Profile = sketch22
pad5.Length = 1
pad5.Reversed = True

sketch23 = body.newObject("Sketcher::SketchObject", "Sketch022")
sketch23.AttachmentSupport = (doc.getObject("YZ_Plane"), [""])
sketch23.MapMode = "FlatFace"
sketch23.AttachmentOffset = App.Placement(Vector(0, 0, 19.2), App.Rotation())
sketch23.addGeometry(Part.Circle(Vector(0, -10, 0), Vector(0, 0, 1), 1.5), False)
sketch23.addConstraint(Sketcher.Constraint("PointOnObject", 0, 3, -2))
sketch23.addConstraint(Sketcher.Constraint("Diameter", 0, 3.0))
sketch23.addConstraint(Sketcher.Constraint("DistanceY", 0, 3, -1, 1, 10.0))
pad6 = body.newObject("PartDesign::Pad", "Pad005")
pad6.Profile = sketch23
pad6.Length = 1
pad6.Reversed = True

sketch24 = body.newObject("Sketcher::SketchObject", "Sketch023")
sketch24.AttachmentSupport = (doc.getObject("YZ_Plane"), [""])
sketch24.MapMode = "FlatFace"
sketch24.AttachmentOffset = App.Placement(Vector(0, 0, 20), App.Rotation())
sketch24.addGeometry(Part.Circle(Vector(10, 0, 0), Vector(0, 0, 1), 1.5), False)
sketch24.addConstraint(Sketcher.Constraint("PointOnObject", 0, 3, -1))
sketch24.addConstraint(Sketcher.Constraint("Diameter", 0, 3.0))
sketch24.addConstraint(Sketcher.Constraint("DistanceX", -1, 1, 0, 3, 10.0))
pad7 = body.newObject("PartDesign::Pad", "Pad006")
pad7.Profile = sketch24
pad7.Length = 1

sketch25 = body.newObject("Sketcher::SketchObject", "Sketch024")
sketch25.AttachmentSupport = (doc.getObject("YZ_Plane"), [""])
sketch25.MapMode = "FlatFace"
sketch25.AttachmentOffset = App.Placement(Vector(0, 0, 20), App.Rotation())
sketch25.addGeometry(Part.Circle(Vector(-10, 0, 0), Vector(0, 0, 1), 1.5), False)
sketch25.addConstraint(Sketcher.Constraint("PointOnObject", 0, 3, -1))
sketch25.addConstraint(Sketcher.Constraint("Diameter", 0, 3.0))
sketch25.addConstraint(Sketcher.Constraint("DistanceX", 0, 3, -1, 1, 10.0))
pad8 = body.newObject("PartDesign::Pad", "Pad007")
pad8.Profile = sketch25
pad8.Length = 1

sketch26 = body.newObject("Sketcher::SketchObject", "Sketch025")
sketch26.AttachmentSupport = (doc.getObject("YZ_Plane"), [""])
sketch26.MapMode = "FlatFace"
sketch26.addGeometry(Part.Circle(Vector(10, 0, 0), Vector(0, 0, 1), 1.5), False)
sketch26.addConstraint(Sketcher.Constraint("PointOnObject", 0, 3, -1))
sketch26.addConstraint(Sketcher.Constraint("Diameter", 0, 3.0))
sketch26.addConstraint(Sketcher.Constraint("DistanceX", -1, 1, 0, 3, 10.0))
doc.recompute()
hole = body.newObject("PartDesign::Hole", "Hole")
hole.Profile = sketch26
hole.ThreadType = "None"
hole.Diameter = 3
hole.DepthType = "Dimension"
hole.Depth = 9
hole.DrillPoint = "Flat"
hole.Reversed = True

sketch27 = body.newObject("Sketcher::SketchObject", "Sketch026")
sketch27.AttachmentSupport = (doc.getObject("YZ_Plane"), [""])
sketch27.MapMode = "FlatFace"
sketch27.addGeometry(Part.Circle(Vector(-10, 0, 0), Vector(0, 0, 1), 1.5), False)
sketch27.addConstraint(Sketcher.Constraint("PointOnObject", 0, 3, -1))
sketch27.addConstraint(Sketcher.Constraint("Diameter", 0, 3.0))
sketch27.addConstraint(Sketcher.Constraint("DistanceX", 0, 3, -1, 1, 10.0))
doc.recompute()
hole2 = body.newObject("PartDesign::Hole", "Hole001")
hole2.Profile = sketch27
hole2.ThreadType = "None"
hole2.Diameter = 3
hole2.DepthType = "Dimension"
hole2.Depth = 9
hole2.DrillPoint = "Flat"
hole2.Reversed = True

sketch28 = body.newObject("Sketcher::SketchObject", "Sketch027")
sketch28.AttachmentSupport = (doc.getObject("YZ_Plane"), [""])
sketch28.MapMode = "FlatFace"
sketch28.AttachmentOffset = App.Placement(Vector(0, 0, 30.2), App.Rotation())
sketch28.addGeometry(Part.Circle(Vector(10, 0, 0), Vector(0, 0, 1), 1.5), False)
sketch28.addConstraint(Sketcher.Constraint("PointOnObject", 0, 3, -1))
sketch28.addConstraint(Sketcher.Constraint("Diameter", 0, 3.0))
sketch28.addConstraint(Sketcher.Constraint("DistanceX", -1, 1, 0, 3, 10.0))
doc.recompute()
hole3 = body.newObject("PartDesign::Hole", "Hole002")
hole3.Profile = sketch28
hole3.ThreadType = "None"
hole3.Diameter = 3
hole3.DepthType = "Dimension"
hole3.Depth = 9
hole3.DrillPoint = "Flat"

sketch29 = body.newObject("Sketcher::SketchObject", "Sketch028")
sketch29.AttachmentSupport = (doc.getObject("YZ_Plane"), [""])
sketch29.MapMode = "FlatFace"
sketch29.AttachmentOffset = App.Placement(Vector(0, 0, 30.2), App.Rotation())
sketch29.addGeometry(Part.Circle(Vector(-10, 0, 0), Vector(0, 0, 1), 1.5), False)
sketch29.addConstraint(Sketcher.Constraint("PointOnObject", 0, 3, -1))
sketch29.addConstraint(Sketcher.Constraint("Diameter", 0, 3.0))
sketch29.addConstraint(Sketcher.Constraint("DistanceX", 0, 3, -1, 1, 10.0))
doc.recompute()
hole4 = body.newObject("PartDesign::Hole", "Hole003")
hole4.Profile = sketch29
hole4.ThreadType = "None"
hole4.Diameter = 3
hole4.DepthType = "Dimension"
hole4.Depth = 9
hole4.DrillPoint = "Flat"

doc.recompute()
